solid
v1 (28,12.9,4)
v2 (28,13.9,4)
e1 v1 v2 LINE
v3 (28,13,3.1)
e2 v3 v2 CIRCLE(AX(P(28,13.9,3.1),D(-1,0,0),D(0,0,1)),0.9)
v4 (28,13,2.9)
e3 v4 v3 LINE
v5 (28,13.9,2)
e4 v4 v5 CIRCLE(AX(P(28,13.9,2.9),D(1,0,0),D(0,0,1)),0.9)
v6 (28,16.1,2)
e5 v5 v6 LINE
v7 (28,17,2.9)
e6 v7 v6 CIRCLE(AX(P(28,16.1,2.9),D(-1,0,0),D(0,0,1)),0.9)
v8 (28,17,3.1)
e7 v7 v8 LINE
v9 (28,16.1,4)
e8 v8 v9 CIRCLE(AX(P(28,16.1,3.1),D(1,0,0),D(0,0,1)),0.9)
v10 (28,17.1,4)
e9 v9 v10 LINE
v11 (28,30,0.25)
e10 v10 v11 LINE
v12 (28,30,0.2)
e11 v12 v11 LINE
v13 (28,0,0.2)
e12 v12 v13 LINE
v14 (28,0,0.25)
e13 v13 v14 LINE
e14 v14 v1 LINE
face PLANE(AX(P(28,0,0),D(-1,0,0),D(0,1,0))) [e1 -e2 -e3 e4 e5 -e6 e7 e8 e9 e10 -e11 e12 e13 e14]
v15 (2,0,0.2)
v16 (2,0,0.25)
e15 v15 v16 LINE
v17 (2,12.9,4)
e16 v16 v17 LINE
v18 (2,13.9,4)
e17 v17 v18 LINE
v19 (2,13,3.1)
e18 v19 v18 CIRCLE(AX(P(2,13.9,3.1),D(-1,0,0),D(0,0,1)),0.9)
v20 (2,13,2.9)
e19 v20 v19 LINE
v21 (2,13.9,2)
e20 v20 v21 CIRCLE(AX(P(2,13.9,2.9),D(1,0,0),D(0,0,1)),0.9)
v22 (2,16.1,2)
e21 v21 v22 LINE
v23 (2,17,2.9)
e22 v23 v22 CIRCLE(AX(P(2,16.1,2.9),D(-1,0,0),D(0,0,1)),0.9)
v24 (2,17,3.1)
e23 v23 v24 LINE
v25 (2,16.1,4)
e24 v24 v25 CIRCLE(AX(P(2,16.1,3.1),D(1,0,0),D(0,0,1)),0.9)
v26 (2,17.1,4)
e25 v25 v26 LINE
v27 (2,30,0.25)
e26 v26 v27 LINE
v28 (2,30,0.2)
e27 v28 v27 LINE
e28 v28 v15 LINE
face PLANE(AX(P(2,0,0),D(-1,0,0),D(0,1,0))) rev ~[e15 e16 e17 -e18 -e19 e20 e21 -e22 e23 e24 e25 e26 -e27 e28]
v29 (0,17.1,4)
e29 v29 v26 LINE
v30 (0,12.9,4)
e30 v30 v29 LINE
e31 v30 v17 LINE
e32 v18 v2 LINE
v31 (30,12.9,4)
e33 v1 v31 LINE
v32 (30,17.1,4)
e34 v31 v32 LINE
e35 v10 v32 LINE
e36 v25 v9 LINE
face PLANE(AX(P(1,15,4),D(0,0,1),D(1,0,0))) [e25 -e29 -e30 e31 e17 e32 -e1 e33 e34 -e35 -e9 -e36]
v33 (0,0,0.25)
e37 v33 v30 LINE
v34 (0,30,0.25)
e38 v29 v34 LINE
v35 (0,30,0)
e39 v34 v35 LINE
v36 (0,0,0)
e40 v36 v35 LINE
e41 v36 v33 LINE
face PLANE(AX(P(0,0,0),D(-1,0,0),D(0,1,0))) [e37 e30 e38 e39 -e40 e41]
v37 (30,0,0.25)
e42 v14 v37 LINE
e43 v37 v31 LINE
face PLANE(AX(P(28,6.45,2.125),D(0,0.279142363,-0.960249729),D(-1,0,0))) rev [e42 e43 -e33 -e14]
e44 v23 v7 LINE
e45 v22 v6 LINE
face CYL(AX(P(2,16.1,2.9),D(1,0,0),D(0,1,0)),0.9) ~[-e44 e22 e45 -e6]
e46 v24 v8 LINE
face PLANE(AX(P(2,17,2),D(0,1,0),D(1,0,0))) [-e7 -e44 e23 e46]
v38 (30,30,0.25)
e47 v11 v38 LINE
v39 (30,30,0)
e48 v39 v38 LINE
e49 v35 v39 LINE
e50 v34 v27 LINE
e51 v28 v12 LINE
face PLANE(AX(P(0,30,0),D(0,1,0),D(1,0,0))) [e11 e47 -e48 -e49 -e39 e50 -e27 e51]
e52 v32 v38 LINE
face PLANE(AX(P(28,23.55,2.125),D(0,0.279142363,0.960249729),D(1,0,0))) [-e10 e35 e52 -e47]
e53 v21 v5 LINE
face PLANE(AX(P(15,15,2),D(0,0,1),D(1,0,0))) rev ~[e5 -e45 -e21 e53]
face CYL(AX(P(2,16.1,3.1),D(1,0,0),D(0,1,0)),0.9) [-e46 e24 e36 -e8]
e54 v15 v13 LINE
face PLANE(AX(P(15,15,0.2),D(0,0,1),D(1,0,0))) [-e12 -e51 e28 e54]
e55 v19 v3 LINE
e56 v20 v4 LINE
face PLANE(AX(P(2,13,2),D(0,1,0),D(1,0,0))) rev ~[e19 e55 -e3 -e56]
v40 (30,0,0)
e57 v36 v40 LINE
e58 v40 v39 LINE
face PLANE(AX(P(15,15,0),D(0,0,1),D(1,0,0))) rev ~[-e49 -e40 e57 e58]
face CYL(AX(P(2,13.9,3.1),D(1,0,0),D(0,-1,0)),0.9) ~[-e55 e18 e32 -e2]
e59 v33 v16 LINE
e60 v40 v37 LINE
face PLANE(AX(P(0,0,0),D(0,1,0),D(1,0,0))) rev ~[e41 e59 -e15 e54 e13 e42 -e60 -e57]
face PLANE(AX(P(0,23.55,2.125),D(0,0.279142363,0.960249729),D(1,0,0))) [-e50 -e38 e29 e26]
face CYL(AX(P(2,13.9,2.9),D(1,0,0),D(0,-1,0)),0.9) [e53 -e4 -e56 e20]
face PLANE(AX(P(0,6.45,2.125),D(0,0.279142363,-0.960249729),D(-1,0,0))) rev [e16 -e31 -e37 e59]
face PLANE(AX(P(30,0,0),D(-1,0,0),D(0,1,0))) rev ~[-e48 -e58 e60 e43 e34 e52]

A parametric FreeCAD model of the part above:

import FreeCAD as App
import Part
import Sketcher

V = App.Vector


def edges_at(feature, points):
    """Names of the edges that pass closest to the given points."""
    edges = feature.Shape.Edges
    near = lambda p: min(range(len(edges)), key=lambda i: edges[i].distToShape(Part.Vertex(*p))[0])
    return sorted({f"Edge{near(p) + 1}" for p in points})

doc = App.newDocument("Part")
body = doc.addObject("PartDesign::Body", "Body")

# Sketch on XY plane
sketch1 = body.newObject("Sketcher::SketchObject", "Sketch")
sketch1.AttachmentSupport = (doc.getObject("XY_Plane"), [""])
sketch1.MapMode = "FlatFace"
sketch1.addGeometry([
    Part.LineSegment(V(0, 30, 0), V(0, 0, 0)),
    Part.LineSegment(V(0, 0, 0), V(2, 0, 0)),
    Part.LineSegment(V(2, 0, 0), V(2, 30, 0)),
    Part.LineSegment(V(2, 30, 0), V(0, 30, 0)),
], False)
sketch1.addConstraint([
    Sketcher.Constraint("Coincident", 0, 2, 1, 1),
    Sketcher.Constraint("Coincident", 1, 2, 2, 1),
    Sketcher.Constraint("Coincident", 2, 2, 3, 1),
    Sketcher.Constraint("Coincident", 3, 2, 0, 1),
    Sketcher.Constraint("Vertical", 0),
    Sketcher.Constraint("Horizontal", 1),
    Sketcher.Constraint("Vertical", 2),
    Sketcher.Constraint("Horizontal", 3),
    Sketcher.Constraint("Coincident", 0, 2, -1, 1),
    Sketcher.Constraint("DistanceX", 1, 1, 1, 2, 2.0),
    Sketcher.Constraint("DistanceY", 0, 2, 0, 1, 30.0),
])
pad1 = body.newObject("PartDesign::Pad", "Pad")
pad1.Profile = sketch1
pad1.Length = 4
body2 = doc.addObject("PartDesign::Body", "Body001")

# Sketch on XY plane
sketch2 = body2.newObject("Sketcher::SketchObject", "Sketch001")
sketch2.AttachmentSupport = (doc.getObject("XY_Plane001"), [""])
sketch2.MapMode = "FlatFace"
sketch2.addGeometry([
    Part.LineSegment(V(28, 30, 0), V(28, 0, 0)),
    Part.LineSegment(V(28, 0, 0), V(30, 0, 0)),
    Part.LineSegment(V(30, 0, 0), V(30, 30, 0)),
    Part.LineSegment(V(30, 30, 0), V(28, 30, 0)),
], False)
sketch2.addConstraint([
    Sketcher.Constraint("Coincident", 0, 2, 1, 1),
    Sketcher.Constraint("Coincident", 1, 2, 2, 1),
    Sketcher.Constraint("Coincident", 2, 2, 3, 1),
    Sketcher.Constraint("Coincident", 3, 2, 0, 1),
    Sketcher.Constraint("Vertical", 0),
    Sketcher.Constraint("Horizontal", 1),
    Sketcher.Constraint("Vertical", 2),
    Sketcher.Constraint("Horizontal", 3),
    Sketcher.Constraint("PointOnObject", 0, 2, -1),
    Sketcher.Constraint("DistanceX", 1, 1, 1, 2, 2.0),
    Sketcher.Constraint("DistanceY", 0, 2, 0, 1, 30.0),
    Sketcher.Constraint("DistanceX", -1, 1, 0, 2, 28.0),
])
pad2 = body2.newObject("PartDesign::Pad", "Pad001")
pad2.Profile = sketch2
pad2.Length = 4
body3 = doc.addObject("PartDesign::Body", "Body002")

# Sketch on XY plane
sketch3 = body3.newObject("Sketcher::SketchObject", "Sketch002")
sketch3.AttachmentSupport = (doc.getObject("XY_Plane002"), [""])
sketch3.MapMode = "FlatFace"
sketch3.AttachmentOffset = App.Placement(V(0, 0, 2), App.Rotation())
sketch3.addGeometry([
    Part.LineSegment(V(2, 17, 0), V(2, 13, 0)),
    Part.LineSegment(V(2, 13, 0), V(28, 13, 0)),
    Part.LineSegment(V(28, 13, 0), V(28, 17, 0)),
    Part.LineSegment(V(28, 17, 0), V(2, 17, 0)),
], False)
sketch3.addConstraint([
    Sketcher.Constraint("Coincident", 0, 2, 1, 1),
    Sketcher.Constraint("Coincident", 1, 2, 2, 1),
    Sketcher.Constraint("Coincident", 2, 2, 3, 1),
    Sketcher.Constraint("Coincident", 3, 2, 0, 1),
    Sketcher.Constraint("Vertical", 0),
    Sketcher.Constraint("Horizontal", 1),
    Sketcher.Constraint("Vertical", 2),
    Sketcher.Constraint("Horizontal", 3),
    Sketcher.Constraint("DistanceX", 1, 1, 1, 2, 26.0),
    Sketcher.Constraint("DistanceY", 0, 2, 0, 1, 4.0),
    Sketcher.Constraint("DistanceX", -1, 1, 0, 2, 2.0),
    Sketcher.Constraint("DistanceY", -1, 1, 0, 2, 13.0),
])
pad3 = body3.newObject("PartDesign::Pad", "Pad002")
pad3.Profile = sketch3
pad3.Length = 2
doc.recompute()

fillet = body3.newObject("PartDesign::Fillet", "Fillet")
fillet.Base = (pad3, edges_at(pad3, [
    (15, 13, 2),
    (15, 13, 4),
    (15, 17, 2),
    (15, 17, 4),
]))
fillet.Radius = 0.9
body4 = doc.addObject("PartDesign::Body", "Body003")

# Sketch on XY plane
sketch4 = body4.newObject("Sketcher::SketchObject", "Sketch003")
sketch4.AttachmentSupport = (doc.getObject("XY_Plane003"), [""])
sketch4.MapMode = "FlatFace"
sketch4.addGeometry([
    Part.LineSegment(V(0, 30, 0), V(0, 0, 0)),
    Part.LineSegment(V(0, 0, 0), V(30, 0, 0)),
    Part.LineSegment(V(30, 0, 0), V(30, 30, 0)),
    Part.LineSegment(V(30, 30, 0), V(0, 30, 0)),
], False)
sketch4.addConstraint([
    Sketcher.Constraint("Coincident", 0, 2, 1, 1),
    Sketcher.Constraint("Coincident", 1, 2, 2, 1),
    Sketcher.Constraint("Coincident", 2, 2, 3, 1),
    Sketcher.Constraint("Coincident", 3, 2, 0, 1),
    Sketcher.Constraint("Vertical", 0),
    Sketcher.Constraint("Horizontal", 1),
    Sketcher.Constraint("Vertical", 2),
    Sketcher.Constraint("Horizontal", 3),
    Sketcher.Constraint("Coincident", 0, 2, -1, 1),
    Sketcher.Constraint("Equal", 3, 0),
    Sketcher.Constraint("DistanceX", 1, 1, 1, 2, 30.0),
])
pad4 = body4.newObject("PartDesign::Pad", "Pad003")
pad4.Profile = sketch4
pad4.Length = 0.2
doc.recompute()

boolean = body4.newObject("PartDesign::Boolean", "Boolean")
boolean.Type = "Fuse"
boolean.addObjects([body])
doc.recompute()

boolean2 = body4.newObject("PartDesign::Boolean", "Boolean001")
boolean2.Type = "Fuse"
boolean2.addObjects([body2])
doc.recompute()

boolean3 = body4.newObject("PartDesign::Boolean", "Boolean002")
boolean3.Type = "Fuse"
boolean3.addObjects([body3])
doc.recompute()

chamfer = body4.newObject("PartDesign::Chamfer", "Chamfer")
chamfer.Base = (boolean3, edges_at(boolean3, [(29, 30, 4)]))
chamfer.ChamferType = "Two distances"
chamfer.Size = 12.9
chamfer.Size2 = 3.75
chamfer.FlipDirection = True
doc.recompute()

chamfer2 = body4.newObject("PartDesign::Chamfer", "Chamfer001")
chamfer2.Base = (chamfer, edges_at(chamfer, [(1, 30, 4)]))
chamfer2.ChamferType = "Two distances"
chamfer2.Size = 12.9
chamfer2.Size2 = 3.75
chamfer2.FlipDirection = True
doc.recompute()

chamfer3 = body4.newObject("PartDesign::Chamfer", "Chamfer002")
chamfer3.Base = (chamfer2, edges_at(chamfer2, [(29, 0, 4)]))
chamfer3.ChamferType = "Two distances"
chamfer3.Size = 3.75
chamfer3.Size2 = 12.9
chamfer3.FlipDirection = True
doc.recompute()

chamfer4 = body4.newObject("PartDesign::Chamfer", "Chamfer003")
chamfer4.Base = (chamfer3, edges_at(chamfer3, [(1, 0, 4)]))
chamfer4.ChamferType = "Two distances"
chamfer4.Size = 3.75
chamfer4.Size2 = 12.9

doc.recompute()
